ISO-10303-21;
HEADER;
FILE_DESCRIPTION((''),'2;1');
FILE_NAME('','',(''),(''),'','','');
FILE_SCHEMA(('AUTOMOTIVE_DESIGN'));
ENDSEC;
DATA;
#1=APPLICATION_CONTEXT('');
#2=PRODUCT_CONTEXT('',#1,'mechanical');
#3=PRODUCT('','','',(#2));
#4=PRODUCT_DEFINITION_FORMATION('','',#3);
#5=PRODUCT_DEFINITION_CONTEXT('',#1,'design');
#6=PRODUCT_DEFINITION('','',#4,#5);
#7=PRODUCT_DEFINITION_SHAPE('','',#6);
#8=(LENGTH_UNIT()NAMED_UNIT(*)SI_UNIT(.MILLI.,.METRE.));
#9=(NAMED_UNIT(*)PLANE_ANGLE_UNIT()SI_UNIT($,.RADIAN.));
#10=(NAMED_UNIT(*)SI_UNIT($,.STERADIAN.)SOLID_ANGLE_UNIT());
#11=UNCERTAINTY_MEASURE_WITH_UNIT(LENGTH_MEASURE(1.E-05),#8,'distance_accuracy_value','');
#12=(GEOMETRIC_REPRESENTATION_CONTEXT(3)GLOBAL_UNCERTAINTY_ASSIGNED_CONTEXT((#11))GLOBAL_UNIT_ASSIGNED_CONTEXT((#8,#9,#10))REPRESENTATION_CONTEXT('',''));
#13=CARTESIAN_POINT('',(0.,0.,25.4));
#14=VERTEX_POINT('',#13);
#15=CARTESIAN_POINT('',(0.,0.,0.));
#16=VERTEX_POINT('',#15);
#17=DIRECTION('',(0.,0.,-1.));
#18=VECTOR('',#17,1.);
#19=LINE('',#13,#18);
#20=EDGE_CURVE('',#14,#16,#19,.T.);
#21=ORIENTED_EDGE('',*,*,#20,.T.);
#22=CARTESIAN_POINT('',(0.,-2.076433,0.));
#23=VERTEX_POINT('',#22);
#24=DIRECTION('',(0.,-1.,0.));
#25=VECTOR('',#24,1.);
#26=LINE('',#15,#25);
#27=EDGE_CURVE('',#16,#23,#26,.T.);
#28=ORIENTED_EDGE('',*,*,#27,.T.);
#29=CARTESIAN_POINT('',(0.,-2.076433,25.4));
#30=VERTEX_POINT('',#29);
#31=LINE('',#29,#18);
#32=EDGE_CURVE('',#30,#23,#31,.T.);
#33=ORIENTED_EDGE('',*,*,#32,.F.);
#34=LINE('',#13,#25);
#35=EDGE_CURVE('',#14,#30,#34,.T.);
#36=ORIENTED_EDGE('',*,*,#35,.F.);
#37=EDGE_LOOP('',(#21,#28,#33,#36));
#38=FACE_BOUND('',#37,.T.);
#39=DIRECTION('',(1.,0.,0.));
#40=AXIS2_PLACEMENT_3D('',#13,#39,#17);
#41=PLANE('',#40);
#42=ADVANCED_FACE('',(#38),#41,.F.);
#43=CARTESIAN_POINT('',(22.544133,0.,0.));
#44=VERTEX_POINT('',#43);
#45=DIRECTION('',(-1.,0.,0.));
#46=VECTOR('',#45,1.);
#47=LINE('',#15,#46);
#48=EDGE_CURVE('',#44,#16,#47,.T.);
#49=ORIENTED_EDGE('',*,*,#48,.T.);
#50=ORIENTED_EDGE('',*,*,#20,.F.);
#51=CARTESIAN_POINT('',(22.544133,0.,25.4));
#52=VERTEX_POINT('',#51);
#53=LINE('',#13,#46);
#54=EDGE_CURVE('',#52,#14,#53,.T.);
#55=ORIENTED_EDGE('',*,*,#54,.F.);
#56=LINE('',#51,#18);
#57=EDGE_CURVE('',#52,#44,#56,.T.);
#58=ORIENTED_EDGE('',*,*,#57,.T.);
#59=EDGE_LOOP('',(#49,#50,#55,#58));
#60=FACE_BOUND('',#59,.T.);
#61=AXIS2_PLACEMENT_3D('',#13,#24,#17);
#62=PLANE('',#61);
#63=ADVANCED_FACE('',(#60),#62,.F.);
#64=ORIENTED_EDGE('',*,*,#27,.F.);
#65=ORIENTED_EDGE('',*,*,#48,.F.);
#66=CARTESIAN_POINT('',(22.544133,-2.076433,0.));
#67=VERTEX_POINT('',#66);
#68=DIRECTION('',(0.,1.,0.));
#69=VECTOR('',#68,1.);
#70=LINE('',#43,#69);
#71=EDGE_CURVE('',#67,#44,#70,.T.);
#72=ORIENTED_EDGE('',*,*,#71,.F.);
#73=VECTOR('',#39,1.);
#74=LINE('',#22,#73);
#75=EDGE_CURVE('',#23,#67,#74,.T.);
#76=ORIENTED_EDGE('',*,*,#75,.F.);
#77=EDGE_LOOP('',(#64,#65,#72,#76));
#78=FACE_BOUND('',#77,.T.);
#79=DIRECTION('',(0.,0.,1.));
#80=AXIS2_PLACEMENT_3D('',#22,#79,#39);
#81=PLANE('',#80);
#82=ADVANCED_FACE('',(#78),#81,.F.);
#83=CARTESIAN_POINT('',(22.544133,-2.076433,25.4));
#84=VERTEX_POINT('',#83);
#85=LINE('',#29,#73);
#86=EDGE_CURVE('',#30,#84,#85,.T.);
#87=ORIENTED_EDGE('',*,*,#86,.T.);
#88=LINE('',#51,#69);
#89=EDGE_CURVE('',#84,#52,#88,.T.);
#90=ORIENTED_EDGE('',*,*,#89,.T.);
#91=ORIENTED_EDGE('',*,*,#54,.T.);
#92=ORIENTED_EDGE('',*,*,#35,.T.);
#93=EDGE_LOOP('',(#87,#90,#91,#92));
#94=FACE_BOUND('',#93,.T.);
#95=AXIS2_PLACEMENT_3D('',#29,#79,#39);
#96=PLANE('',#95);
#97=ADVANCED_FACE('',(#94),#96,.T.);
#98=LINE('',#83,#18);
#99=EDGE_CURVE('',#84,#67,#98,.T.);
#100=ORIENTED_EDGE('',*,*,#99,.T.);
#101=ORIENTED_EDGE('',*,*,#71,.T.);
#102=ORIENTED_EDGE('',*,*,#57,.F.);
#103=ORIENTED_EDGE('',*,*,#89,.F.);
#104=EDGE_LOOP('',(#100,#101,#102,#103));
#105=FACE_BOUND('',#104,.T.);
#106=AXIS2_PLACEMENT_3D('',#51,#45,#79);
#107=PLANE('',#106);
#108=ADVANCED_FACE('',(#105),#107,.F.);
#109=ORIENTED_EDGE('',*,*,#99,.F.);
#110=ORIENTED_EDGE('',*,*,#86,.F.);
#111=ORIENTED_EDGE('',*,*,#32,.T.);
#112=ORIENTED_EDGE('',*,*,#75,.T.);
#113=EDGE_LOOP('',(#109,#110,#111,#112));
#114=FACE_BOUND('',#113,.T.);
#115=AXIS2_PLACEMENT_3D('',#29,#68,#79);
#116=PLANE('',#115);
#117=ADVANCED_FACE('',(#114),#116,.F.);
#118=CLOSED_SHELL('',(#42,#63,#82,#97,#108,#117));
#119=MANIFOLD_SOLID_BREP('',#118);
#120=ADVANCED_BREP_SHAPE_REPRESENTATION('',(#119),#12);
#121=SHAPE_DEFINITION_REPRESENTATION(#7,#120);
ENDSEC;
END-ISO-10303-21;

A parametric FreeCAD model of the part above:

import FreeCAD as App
import Part
import Sketcher

V = App.Vector
Q = App.Units.Quantity


def add_polygon(sketch, points):
    """Adds a closed chain of lines whose ends are joined by coincident constraints."""
    first, n = sketch.GeometryCount, len(points)
    for a, b in zip(points, points[1:] + points[:1]):
        sketch.addGeometry(Part.LineSegment(App.Vector(*a, 0), App.Vector(*b, 0)), False)
    for i in range(n):
        sketch.addConstraint(Sketcher.Constraint("Coincident", first + i, 2, first + (i + 1) % n, 1))

doc = App.newDocument("Part")
body = doc.addObject("PartDesign::Body", "Body")

# Sketch on XY plane
sketch1 = doc.addObject("Sketcher::SketchObject", "Sketch")
body.addObject(sketch1)
sketch1.AttachmentSupport = (doc.XY_Plane, [""])
sketch1.MapMode = "FlatFace"
add_polygon(sketch1, [(0, 0), (0, -2.1), (22.5, -2.1), (22.5, 0)])  # lines 0-3
sketch1.addConstraint(Sketcher.Constraint("Vertical", 0))
sketch1.addConstraint(Sketcher.Constraint("Horizontal", 1))
sketch1.addConstraint(Sketcher.Constraint("Vertical", 2))
sketch1.addConstraint(Sketcher.Constraint("Horizontal", 3))
sketch1.addConstraint(Sketcher.Constraint("Coincident", 3, 2, -1, 1))
sketch1.addConstraint(Sketcher.Constraint("DistanceX", 1, 1, 1, 2, Q("22.544133 mm")))
sketch1.addConstraint(Sketcher.Constraint("DistanceY", 0, 2, 0, 1, Q("2.076433 mm")))
pad1 = doc.addObject("PartDesign::Pad", "Pad")
body.addObject(pad1)
pad1.Profile = sketch1
pad1.Length = Q("1 in")

doc.recompute()
